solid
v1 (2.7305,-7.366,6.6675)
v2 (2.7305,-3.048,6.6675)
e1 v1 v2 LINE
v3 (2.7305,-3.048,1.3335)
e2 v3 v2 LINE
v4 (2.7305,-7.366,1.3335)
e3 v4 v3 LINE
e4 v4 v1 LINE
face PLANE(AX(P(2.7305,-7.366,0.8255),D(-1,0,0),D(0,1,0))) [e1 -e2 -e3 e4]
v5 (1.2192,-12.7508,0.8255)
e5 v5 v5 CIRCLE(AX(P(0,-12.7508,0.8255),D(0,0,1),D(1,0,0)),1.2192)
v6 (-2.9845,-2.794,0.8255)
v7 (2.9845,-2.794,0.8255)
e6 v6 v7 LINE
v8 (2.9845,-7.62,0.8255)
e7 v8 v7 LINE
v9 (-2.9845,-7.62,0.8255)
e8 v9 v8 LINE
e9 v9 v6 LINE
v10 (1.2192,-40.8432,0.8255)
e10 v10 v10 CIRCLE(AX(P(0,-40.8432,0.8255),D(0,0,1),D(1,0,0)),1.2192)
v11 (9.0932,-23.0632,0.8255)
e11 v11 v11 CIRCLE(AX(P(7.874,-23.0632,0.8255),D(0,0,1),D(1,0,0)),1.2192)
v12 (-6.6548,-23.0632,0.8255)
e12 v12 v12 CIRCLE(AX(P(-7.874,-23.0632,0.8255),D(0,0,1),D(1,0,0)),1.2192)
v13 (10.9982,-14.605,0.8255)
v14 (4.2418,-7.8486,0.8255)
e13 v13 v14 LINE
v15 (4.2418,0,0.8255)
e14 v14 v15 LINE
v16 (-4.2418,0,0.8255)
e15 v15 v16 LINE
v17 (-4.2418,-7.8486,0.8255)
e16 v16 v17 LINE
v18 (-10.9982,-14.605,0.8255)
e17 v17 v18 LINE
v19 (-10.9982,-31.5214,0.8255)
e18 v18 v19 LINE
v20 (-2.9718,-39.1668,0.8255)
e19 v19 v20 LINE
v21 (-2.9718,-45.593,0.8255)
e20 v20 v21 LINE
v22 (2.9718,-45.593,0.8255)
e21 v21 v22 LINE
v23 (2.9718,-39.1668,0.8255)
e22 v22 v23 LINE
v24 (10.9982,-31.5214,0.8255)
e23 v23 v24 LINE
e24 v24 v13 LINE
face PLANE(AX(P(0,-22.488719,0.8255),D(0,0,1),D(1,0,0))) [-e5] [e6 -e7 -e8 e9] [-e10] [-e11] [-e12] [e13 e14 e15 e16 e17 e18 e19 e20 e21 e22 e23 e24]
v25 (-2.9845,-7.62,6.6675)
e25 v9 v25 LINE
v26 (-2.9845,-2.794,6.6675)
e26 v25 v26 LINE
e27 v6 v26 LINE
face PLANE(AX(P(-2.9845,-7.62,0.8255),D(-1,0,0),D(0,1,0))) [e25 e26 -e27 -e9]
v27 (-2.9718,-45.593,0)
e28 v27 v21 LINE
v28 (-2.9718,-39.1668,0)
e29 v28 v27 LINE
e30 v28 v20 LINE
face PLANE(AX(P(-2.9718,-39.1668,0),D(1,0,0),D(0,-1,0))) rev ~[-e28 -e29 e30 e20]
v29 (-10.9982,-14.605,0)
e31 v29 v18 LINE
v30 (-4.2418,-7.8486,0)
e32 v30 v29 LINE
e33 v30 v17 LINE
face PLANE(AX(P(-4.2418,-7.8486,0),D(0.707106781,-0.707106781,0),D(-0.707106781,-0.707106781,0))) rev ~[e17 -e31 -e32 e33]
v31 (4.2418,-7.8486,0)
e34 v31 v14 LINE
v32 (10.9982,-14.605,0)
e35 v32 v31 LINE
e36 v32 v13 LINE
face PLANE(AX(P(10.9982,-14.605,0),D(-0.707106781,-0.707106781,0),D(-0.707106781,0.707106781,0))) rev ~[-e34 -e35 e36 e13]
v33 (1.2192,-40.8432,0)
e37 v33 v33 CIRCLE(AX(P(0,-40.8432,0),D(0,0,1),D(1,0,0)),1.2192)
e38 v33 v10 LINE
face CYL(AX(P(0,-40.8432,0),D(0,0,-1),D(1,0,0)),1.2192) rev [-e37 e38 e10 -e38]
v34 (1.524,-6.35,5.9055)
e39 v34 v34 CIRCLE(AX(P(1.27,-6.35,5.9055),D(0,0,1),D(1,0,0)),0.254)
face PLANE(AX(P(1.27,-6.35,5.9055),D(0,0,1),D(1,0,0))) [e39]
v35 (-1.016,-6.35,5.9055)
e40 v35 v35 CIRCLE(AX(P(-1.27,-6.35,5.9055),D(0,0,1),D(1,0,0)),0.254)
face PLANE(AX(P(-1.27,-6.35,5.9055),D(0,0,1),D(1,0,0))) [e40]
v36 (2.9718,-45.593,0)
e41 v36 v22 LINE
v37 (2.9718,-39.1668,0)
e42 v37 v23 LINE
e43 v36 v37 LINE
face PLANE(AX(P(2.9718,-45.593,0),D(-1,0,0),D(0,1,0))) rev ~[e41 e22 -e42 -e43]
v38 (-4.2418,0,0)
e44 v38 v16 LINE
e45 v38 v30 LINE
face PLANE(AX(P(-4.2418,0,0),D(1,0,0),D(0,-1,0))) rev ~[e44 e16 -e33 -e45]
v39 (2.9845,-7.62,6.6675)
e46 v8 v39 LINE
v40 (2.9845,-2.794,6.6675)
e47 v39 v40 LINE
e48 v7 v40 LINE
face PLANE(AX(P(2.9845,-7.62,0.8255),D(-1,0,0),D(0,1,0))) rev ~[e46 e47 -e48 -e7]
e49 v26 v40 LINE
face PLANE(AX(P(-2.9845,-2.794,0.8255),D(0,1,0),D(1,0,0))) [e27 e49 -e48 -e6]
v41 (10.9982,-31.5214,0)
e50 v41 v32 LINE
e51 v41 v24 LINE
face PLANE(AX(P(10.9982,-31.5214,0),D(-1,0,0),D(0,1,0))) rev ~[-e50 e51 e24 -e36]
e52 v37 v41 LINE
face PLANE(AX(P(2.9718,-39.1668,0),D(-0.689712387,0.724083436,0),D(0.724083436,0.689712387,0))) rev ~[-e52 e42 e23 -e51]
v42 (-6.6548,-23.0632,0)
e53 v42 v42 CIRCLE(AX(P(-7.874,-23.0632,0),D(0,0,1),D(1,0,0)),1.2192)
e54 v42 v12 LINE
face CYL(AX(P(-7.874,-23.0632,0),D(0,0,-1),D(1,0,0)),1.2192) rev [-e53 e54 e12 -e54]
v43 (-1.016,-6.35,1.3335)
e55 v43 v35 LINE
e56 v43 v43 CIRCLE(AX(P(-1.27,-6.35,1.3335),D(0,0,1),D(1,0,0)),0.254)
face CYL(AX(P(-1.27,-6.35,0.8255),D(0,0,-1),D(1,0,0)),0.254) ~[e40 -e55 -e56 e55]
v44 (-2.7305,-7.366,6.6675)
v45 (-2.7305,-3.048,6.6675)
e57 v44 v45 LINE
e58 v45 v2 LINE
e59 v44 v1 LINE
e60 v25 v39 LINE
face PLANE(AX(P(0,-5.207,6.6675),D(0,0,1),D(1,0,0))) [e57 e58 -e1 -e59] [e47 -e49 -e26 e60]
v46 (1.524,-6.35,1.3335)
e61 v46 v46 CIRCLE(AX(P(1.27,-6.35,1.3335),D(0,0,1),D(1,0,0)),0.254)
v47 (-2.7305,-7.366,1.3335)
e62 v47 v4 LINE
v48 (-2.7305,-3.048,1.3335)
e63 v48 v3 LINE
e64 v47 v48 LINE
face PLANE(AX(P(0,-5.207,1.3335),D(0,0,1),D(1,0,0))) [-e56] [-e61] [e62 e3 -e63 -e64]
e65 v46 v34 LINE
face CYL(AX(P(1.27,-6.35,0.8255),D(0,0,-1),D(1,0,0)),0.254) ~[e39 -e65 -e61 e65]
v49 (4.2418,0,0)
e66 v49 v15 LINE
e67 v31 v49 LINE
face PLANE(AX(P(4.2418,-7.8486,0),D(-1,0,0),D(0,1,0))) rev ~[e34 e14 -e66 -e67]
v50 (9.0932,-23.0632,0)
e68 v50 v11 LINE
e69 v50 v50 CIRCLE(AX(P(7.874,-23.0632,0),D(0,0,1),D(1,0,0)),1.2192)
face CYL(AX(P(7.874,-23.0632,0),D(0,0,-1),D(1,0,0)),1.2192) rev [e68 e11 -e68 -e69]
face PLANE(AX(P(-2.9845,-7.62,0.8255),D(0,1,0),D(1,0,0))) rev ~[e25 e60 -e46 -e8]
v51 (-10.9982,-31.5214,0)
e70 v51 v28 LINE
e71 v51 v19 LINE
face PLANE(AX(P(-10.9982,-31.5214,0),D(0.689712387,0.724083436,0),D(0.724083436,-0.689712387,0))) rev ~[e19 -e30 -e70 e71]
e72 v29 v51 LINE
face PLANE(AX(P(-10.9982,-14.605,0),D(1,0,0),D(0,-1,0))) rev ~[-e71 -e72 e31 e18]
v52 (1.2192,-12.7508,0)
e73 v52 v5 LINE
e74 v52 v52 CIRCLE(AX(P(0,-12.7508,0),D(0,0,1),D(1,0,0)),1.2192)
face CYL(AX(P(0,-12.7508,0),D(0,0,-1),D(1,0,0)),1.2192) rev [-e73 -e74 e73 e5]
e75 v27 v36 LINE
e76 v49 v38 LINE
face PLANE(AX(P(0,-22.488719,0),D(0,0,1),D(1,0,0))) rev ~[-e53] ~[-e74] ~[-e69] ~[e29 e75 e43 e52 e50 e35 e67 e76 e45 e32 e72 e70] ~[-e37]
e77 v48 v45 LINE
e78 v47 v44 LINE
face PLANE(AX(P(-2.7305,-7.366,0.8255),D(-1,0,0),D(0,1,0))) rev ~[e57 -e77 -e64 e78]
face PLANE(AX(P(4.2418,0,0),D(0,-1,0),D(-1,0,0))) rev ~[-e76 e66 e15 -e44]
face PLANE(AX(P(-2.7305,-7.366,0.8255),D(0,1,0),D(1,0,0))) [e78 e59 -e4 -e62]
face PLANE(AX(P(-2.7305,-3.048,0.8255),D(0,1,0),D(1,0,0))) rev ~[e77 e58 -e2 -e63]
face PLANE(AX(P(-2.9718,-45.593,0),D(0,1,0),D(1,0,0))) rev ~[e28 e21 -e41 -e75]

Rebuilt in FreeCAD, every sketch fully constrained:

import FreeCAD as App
import Part
import Sketcher
from FreeCAD import Vector
Q = App.Units.Quantity


def add_polygon(sketch, points):
    """Adds a closed chain of lines whose ends are joined by coincident constraints."""
    first, n = sketch.GeometryCount, len(points)
    for a, b in zip(points, points[1:] + points[:1]):
        sketch.addGeometry(Part.LineSegment(App.Vector(*a, 0), App.Vector(*b, 0)), False)
    for i in range(n):
        sketch.addConstraint(Sketcher.Constraint("Coincident", first + i, 2, first + (i + 1) % n, 1))

doc = App.newDocument("Part")
params = doc.addObject("Spreadsheet::Sheet", "Params")
for row, (alias, value) in enumerate([
    ("sketch1_diameter", "0.096 in"),
    ("sketch1_width", "0.334 in"),
    ("sketch1_width2", "0.234 in"),
    ("sketch1_height", "0.309 in"),
    ("sketch1_height2", "0.666 in"),
    ("pad1_length", "0.0325 in"),
    ("sketch2_height", "0.19 in"),
    ("sketch2_height2", "0.17 in"),
    ("sketch2_width", "0.235 in"),
    ("sketch2_width2", "0.215 in"),
    ("pad2_length", "0.23 in"),
    ("sketch3_diameter", "0.02 in"),
    ("sketch3_height", "0.17 in"),
    ("sketch3_width", "0.215 in"),
    ("pad3_length", "0.02 in"),
    ("sketch4_diameter", "0.02 in"),
    ("pad4_length", "0.2 in"),
], start=1):
    params.set(f"A{row}", alias)
    params.set(f"B{row}", "=" + value)
    params.setAlias(f"B{row}", alias)

body = doc.addObject("PartDesign::Body", "Body")

# Sketch on XY plane
sketch1 = body.newObject("Sketcher::SketchObject", "Sketch")
sketch1.AttachmentSupport = (doc.getObject("XY_Plane"), [""])
sketch1.MapMode = "FlatFace"
add_polygon(sketch1, [(4.2418, 0), (-4.2418, 0), (-4.2418, -7.8486), (-10.9982, -14.605), (-10.9982, -31.5214), (-2.9718, -39.1668), (-2.9718, -45.593), (2.9718, -45.593), (2.9718, -39.1668), (10.9982, -31.5214), (10.9982, -14.605), (4.2418, -7.8486)])  # lines 0-11
sketch1.addGeometry(Part.Circle(Vector(0, -40.8432, 0), Vector(0, 0, 1), 1.2192), False)  # 12
sketch1.addGeometry(Part.Circle(Vector(-7.874, -23.0632, 0), Vector(0, 0, 1), 1.2192), False)  # 13
sketch1.addGeometry(Part.Circle(Vector(0, -12.7508, 0), Vector(0, 0, 1), 1.2192), False)  # 14
sketch1.addGeometry(Part.Circle(Vector(7.874, -23.0632, 0), Vector(0, 0, 1), 1.2192), False)  # 15
sketch1.addConstraint([
    Sketcher.Constraint("Horizontal", 0),
    Sketcher.Constraint("Vertical", 1),
    Sketcher.Constraint("Vertical", 3),
    Sketcher.Constraint("Vertical", 5),
    Sketcher.Constraint("Horizontal", 6),
    Sketcher.Constraint("Vertical", 7),
    Sketcher.Constraint("Vertical", 9),
    Sketcher.Constraint("Vertical", 11),
    Sketcher.Constraint("Equal", 12, 13),
    Sketcher.Constraint("Equal", 13, 14),
    Sketcher.Constraint("Equal", 14, 15),
    Sketcher.Constraint("Symmetric", 0, 2, 11, 2, -1, 1),
    Sketcher.Constraint("Symmetric", 13, 3, 15, 3, -2),
    Sketcher.Constraint("Symmetric", 4, 2, 7, 2, -2),
    Sketcher.Constraint("Symmetric", 3, 2, 8, 2, -2),
    Sketcher.Constraint("PointOnObject", 12, 3, -2),
    Sketcher.Constraint("PointOnObject", 14, 3, -2),
    Sketcher.Constraint("Perpendicular", 2, 10),
    Sketcher.Constraint("Horizontal", 2, 2, 9, 2),
    Sketcher.Constraint("Horizontal", 1, 2, 10, 2),
    Sketcher.Constraint("Diameter", 12, Q("0.096 in")),
    Sketcher.Constraint("DistanceY", 12, 3, 13, 3, Q("0.7 in")),
    Sketcher.Constraint("DistanceX", 1, 2, 9, 2, Q("0.6 in")),
    Sketcher.Constraint("DistanceX", 0, 2, 0, 1, Q("0.334 in")),
    Sketcher.Constraint("DistanceX", 6, 1, 6, 2, Q("0.234 in")),
    Sketcher.Constraint("DistanceY", 1, 2, 1, 1, Q("0.309 in")),
    Sketcher.Constraint("DistanceY", 3, 2, 3, 1, Q("0.666 in")),
    Sketcher.Constraint("DistanceY", 5, 2, 5, 1, Q("0.253 in")),
    Sketcher.Constraint("DistanceX", 13, 3, -1, 1, Q("0.31 in")),
    Sketcher.Constraint("DistanceY", 12, 3, -1, 1, Q("1.608 in")),
    Sketcher.Constraint("DistanceY", 14, 3, -1, 1, Q("0.502 in")),
    Sketcher.Constraint("DistanceY", 4, 2, -1, 1, Q("1.542 in")),
])
sketch1.setExpression("Constraints[32]", "Params.sketch1_diameter")
sketch1.setExpression("Constraints[35]", "Params.sketch1_width")
sketch1.setExpression("Constraints[36]", "Params.sketch1_width2")
sketch1.setExpression("Constraints[37]", "Params.sketch1_height")
sketch1.setExpression("Constraints[38]", "Params.sketch1_height2")
pad1 = body.newObject("PartDesign::Pad", "Pad")
pad1.Profile = sketch1
pad1.setExpression("Length", "Params.pad1_length")

# Sketch on XY plane
sketch2 = body.newObject("Sketcher::SketchObject", "Sketch001")
sketch2.AttachmentSupport = (doc.getObject("XY_Plane"), [""])
sketch2.MapMode = "FlatFace"
sketch2.AttachmentOffset = App.Placement(Vector(0, 0, 0.0325 * 25.4), App.Rotation())
add_polygon(sketch2, [(-2.9845, -2.794), (-2.9845, -7.62), (2.9845, -7.62), (2.9845, -2.794)])  # lines 0-3
add_polygon(sketch2, [(2.7305, -7.366), (-2.7305, -7.366), (-2.7305, -3.048), (2.7305, -3.048)])  # lines 4-7
sketch2.addConstraint([
    Sketcher.Constraint("Vertical", 0),
    Sketcher.Constraint("Horizontal", 1),
    Sketcher.Constraint("Vertical", 2),
    Sketcher.Constraint("Horizontal", 3),
    Sketcher.Constraint("Horizontal", 4),
    Sketcher.Constraint("Vertical", 5),
    Sketcher.Constraint("Horizontal", 6),
    Sketcher.Constraint("Vertical", 7),
    Sketcher.Constraint("DistanceY", 0, 2, 0, 1, Q("0.19 in")),
    Sketcher.Constraint("DistanceY", 5, 1, 5, 2, Q("0.17 in")),
    Sketcher.Constraint("DistanceY", 0, 2, -1, 1, Q("0.3 in")),
    Sketcher.Constraint("DistanceX", 1, 1, 1, 2, Q("0.235 in")),
    Sketcher.Constraint("DistanceX", 4, 2, 4, 1, Q("0.215 in")),
    Sketcher.Constraint("DistanceY", 4, 2, -1, 1, Q("0.29 in")),
    Sketcher.Constraint("DistanceX", 0, 2, 4, 2, Q("0.01 in")),
    Sketcher.Constraint("DistanceX", 0, 2, -1, 1, Q("0.1175 in")),
])
sketch2.setExpression("Constraints[16]", "Params.sketch2_height")
sketch2.setExpression("Constraints[17]", "Params.sketch2_height2")
sketch2.setExpression("Constraints[19]", "Params.sketch2_width")
sketch2.setExpression("Constraints[20]", "Params.sketch2_width2")
pad2 = body.newObject("PartDesign::Pad", "Pad001")
pad2.Profile = sketch2
pad2.setExpression("Length", "Params.pad2_length")

# Sketch on XY plane
sketch3 = body.newObject("Sketcher::SketchObject", "Sketch002")
sketch3.AttachmentSupport = (doc.getObject("XY_Plane"), [""])
sketch3.MapMode = "FlatFace"
sketch3.AttachmentOffset = App.Placement(Vector(0, 0, 0.0325 * 25.4), App.Rotation())
add_polygon(sketch3, [(-2.7305, -3.048), (-2.7305, -7.366), (2.7305, -7.366), (2.7305, -3.048)])  # lines 0-3
sketch3.addGeometry(Part.Circle(Vector(-1.27, -6.35, 0), Vector(0, 0, 1), 0.254), False)  # 4
sketch3.addGeometry(Part.Circle(Vector(1.27, -6.35, 0), Vector(0, 0, 1), 0.254), False)  # 5
sketch3.addConstraint([
    Sketcher.Constraint("Vertical", 0),
    Sketcher.Constraint("Horizontal", 1),
    Sketcher.Constraint("Vertical", 2),
    Sketcher.Constraint("Horizontal", 3),
    Sketcher.Constraint("Equal", 4, 5),
    Sketcher.Constraint("Symmetric", 4, 3, 5, 3, -2),
    Sketcher.Constraint("Diameter", 4, Q("0.02 in")),
    Sketcher.Constraint("DistanceY", 0, 2, 0, 1, Q("0.17 in")),
    Sketcher.Constraint("DistanceX", 4, 3, 5, 3, Q("0.1 in")),
    Sketcher.Constraint("DistanceX", 1, 1, 1, 2, Q("0.215 in")),
    Sketcher.Constraint("DistanceY", 4, 3, -1, 1, Q("0.25 in")),
    Sketcher.Constraint("DistanceY", 0, 2, -1, 1, Q("0.29 in")),
    Sketcher.Constraint("DistanceX", 0, 2, -1, 1, Q("0.1075 in")),
])
sketch3.setExpression("Constraints[10]", "Params.sketch3_diameter")
sketch3.setExpression("Constraints[11]", "Params.sketch3_height")
sketch3.setExpression("Constraints[13]", "Params.sketch3_width")
pad3 = body.newObject("PartDesign::Pad", "Pad002")
pad3.Profile = sketch3
pad3.setExpression("Length", "Params.pad3_length")

# Sketch on XY plane
sketch4 = body.newObject("Sketcher::SketchObject", "Sketch003")
sketch4.AttachmentSupport = (doc.getObject("XY_Plane"), [""])
sketch4.MapMode = "FlatFace"
sketch4.AttachmentOffset = App.Placement(Vector(0, 0, 0.0325 * 25.4), App.Rotation())
sketch4.addGeometry([
    Part.Circle(Vector(-1.27, -6.35, 0), Vector(0, 0, 1), 0.254),
    Part.Circle(Vector(1.27, -6.35, 0), Vector(0, 0, 1), 0.254),
], False)
sketch4.addConstraint([
    Sketcher.Constraint("Equal", 0, 1),
    Sketcher.Constraint("Symmetric", 0, 3, 1, 3, -2),
    Sketcher.Constraint("Diameter", 0, Q("0.02 in")),
    Sketcher.Constraint("DistanceX", 0, 3, 1, 3, Q("0.1 in")),
    Sketcher.Constraint("DistanceY", 0, 3, -1, 1, Q("0.25 in")),
])
sketch4.setExpression("Constraints[2]", "Params.sketch4_diameter")
pad4 = body.newObject("PartDesign::Pad", "Pad003")
pad4.Profile = sketch4
pad4.setExpression("Length", "Params.pad4_length")

doc.recompute()
